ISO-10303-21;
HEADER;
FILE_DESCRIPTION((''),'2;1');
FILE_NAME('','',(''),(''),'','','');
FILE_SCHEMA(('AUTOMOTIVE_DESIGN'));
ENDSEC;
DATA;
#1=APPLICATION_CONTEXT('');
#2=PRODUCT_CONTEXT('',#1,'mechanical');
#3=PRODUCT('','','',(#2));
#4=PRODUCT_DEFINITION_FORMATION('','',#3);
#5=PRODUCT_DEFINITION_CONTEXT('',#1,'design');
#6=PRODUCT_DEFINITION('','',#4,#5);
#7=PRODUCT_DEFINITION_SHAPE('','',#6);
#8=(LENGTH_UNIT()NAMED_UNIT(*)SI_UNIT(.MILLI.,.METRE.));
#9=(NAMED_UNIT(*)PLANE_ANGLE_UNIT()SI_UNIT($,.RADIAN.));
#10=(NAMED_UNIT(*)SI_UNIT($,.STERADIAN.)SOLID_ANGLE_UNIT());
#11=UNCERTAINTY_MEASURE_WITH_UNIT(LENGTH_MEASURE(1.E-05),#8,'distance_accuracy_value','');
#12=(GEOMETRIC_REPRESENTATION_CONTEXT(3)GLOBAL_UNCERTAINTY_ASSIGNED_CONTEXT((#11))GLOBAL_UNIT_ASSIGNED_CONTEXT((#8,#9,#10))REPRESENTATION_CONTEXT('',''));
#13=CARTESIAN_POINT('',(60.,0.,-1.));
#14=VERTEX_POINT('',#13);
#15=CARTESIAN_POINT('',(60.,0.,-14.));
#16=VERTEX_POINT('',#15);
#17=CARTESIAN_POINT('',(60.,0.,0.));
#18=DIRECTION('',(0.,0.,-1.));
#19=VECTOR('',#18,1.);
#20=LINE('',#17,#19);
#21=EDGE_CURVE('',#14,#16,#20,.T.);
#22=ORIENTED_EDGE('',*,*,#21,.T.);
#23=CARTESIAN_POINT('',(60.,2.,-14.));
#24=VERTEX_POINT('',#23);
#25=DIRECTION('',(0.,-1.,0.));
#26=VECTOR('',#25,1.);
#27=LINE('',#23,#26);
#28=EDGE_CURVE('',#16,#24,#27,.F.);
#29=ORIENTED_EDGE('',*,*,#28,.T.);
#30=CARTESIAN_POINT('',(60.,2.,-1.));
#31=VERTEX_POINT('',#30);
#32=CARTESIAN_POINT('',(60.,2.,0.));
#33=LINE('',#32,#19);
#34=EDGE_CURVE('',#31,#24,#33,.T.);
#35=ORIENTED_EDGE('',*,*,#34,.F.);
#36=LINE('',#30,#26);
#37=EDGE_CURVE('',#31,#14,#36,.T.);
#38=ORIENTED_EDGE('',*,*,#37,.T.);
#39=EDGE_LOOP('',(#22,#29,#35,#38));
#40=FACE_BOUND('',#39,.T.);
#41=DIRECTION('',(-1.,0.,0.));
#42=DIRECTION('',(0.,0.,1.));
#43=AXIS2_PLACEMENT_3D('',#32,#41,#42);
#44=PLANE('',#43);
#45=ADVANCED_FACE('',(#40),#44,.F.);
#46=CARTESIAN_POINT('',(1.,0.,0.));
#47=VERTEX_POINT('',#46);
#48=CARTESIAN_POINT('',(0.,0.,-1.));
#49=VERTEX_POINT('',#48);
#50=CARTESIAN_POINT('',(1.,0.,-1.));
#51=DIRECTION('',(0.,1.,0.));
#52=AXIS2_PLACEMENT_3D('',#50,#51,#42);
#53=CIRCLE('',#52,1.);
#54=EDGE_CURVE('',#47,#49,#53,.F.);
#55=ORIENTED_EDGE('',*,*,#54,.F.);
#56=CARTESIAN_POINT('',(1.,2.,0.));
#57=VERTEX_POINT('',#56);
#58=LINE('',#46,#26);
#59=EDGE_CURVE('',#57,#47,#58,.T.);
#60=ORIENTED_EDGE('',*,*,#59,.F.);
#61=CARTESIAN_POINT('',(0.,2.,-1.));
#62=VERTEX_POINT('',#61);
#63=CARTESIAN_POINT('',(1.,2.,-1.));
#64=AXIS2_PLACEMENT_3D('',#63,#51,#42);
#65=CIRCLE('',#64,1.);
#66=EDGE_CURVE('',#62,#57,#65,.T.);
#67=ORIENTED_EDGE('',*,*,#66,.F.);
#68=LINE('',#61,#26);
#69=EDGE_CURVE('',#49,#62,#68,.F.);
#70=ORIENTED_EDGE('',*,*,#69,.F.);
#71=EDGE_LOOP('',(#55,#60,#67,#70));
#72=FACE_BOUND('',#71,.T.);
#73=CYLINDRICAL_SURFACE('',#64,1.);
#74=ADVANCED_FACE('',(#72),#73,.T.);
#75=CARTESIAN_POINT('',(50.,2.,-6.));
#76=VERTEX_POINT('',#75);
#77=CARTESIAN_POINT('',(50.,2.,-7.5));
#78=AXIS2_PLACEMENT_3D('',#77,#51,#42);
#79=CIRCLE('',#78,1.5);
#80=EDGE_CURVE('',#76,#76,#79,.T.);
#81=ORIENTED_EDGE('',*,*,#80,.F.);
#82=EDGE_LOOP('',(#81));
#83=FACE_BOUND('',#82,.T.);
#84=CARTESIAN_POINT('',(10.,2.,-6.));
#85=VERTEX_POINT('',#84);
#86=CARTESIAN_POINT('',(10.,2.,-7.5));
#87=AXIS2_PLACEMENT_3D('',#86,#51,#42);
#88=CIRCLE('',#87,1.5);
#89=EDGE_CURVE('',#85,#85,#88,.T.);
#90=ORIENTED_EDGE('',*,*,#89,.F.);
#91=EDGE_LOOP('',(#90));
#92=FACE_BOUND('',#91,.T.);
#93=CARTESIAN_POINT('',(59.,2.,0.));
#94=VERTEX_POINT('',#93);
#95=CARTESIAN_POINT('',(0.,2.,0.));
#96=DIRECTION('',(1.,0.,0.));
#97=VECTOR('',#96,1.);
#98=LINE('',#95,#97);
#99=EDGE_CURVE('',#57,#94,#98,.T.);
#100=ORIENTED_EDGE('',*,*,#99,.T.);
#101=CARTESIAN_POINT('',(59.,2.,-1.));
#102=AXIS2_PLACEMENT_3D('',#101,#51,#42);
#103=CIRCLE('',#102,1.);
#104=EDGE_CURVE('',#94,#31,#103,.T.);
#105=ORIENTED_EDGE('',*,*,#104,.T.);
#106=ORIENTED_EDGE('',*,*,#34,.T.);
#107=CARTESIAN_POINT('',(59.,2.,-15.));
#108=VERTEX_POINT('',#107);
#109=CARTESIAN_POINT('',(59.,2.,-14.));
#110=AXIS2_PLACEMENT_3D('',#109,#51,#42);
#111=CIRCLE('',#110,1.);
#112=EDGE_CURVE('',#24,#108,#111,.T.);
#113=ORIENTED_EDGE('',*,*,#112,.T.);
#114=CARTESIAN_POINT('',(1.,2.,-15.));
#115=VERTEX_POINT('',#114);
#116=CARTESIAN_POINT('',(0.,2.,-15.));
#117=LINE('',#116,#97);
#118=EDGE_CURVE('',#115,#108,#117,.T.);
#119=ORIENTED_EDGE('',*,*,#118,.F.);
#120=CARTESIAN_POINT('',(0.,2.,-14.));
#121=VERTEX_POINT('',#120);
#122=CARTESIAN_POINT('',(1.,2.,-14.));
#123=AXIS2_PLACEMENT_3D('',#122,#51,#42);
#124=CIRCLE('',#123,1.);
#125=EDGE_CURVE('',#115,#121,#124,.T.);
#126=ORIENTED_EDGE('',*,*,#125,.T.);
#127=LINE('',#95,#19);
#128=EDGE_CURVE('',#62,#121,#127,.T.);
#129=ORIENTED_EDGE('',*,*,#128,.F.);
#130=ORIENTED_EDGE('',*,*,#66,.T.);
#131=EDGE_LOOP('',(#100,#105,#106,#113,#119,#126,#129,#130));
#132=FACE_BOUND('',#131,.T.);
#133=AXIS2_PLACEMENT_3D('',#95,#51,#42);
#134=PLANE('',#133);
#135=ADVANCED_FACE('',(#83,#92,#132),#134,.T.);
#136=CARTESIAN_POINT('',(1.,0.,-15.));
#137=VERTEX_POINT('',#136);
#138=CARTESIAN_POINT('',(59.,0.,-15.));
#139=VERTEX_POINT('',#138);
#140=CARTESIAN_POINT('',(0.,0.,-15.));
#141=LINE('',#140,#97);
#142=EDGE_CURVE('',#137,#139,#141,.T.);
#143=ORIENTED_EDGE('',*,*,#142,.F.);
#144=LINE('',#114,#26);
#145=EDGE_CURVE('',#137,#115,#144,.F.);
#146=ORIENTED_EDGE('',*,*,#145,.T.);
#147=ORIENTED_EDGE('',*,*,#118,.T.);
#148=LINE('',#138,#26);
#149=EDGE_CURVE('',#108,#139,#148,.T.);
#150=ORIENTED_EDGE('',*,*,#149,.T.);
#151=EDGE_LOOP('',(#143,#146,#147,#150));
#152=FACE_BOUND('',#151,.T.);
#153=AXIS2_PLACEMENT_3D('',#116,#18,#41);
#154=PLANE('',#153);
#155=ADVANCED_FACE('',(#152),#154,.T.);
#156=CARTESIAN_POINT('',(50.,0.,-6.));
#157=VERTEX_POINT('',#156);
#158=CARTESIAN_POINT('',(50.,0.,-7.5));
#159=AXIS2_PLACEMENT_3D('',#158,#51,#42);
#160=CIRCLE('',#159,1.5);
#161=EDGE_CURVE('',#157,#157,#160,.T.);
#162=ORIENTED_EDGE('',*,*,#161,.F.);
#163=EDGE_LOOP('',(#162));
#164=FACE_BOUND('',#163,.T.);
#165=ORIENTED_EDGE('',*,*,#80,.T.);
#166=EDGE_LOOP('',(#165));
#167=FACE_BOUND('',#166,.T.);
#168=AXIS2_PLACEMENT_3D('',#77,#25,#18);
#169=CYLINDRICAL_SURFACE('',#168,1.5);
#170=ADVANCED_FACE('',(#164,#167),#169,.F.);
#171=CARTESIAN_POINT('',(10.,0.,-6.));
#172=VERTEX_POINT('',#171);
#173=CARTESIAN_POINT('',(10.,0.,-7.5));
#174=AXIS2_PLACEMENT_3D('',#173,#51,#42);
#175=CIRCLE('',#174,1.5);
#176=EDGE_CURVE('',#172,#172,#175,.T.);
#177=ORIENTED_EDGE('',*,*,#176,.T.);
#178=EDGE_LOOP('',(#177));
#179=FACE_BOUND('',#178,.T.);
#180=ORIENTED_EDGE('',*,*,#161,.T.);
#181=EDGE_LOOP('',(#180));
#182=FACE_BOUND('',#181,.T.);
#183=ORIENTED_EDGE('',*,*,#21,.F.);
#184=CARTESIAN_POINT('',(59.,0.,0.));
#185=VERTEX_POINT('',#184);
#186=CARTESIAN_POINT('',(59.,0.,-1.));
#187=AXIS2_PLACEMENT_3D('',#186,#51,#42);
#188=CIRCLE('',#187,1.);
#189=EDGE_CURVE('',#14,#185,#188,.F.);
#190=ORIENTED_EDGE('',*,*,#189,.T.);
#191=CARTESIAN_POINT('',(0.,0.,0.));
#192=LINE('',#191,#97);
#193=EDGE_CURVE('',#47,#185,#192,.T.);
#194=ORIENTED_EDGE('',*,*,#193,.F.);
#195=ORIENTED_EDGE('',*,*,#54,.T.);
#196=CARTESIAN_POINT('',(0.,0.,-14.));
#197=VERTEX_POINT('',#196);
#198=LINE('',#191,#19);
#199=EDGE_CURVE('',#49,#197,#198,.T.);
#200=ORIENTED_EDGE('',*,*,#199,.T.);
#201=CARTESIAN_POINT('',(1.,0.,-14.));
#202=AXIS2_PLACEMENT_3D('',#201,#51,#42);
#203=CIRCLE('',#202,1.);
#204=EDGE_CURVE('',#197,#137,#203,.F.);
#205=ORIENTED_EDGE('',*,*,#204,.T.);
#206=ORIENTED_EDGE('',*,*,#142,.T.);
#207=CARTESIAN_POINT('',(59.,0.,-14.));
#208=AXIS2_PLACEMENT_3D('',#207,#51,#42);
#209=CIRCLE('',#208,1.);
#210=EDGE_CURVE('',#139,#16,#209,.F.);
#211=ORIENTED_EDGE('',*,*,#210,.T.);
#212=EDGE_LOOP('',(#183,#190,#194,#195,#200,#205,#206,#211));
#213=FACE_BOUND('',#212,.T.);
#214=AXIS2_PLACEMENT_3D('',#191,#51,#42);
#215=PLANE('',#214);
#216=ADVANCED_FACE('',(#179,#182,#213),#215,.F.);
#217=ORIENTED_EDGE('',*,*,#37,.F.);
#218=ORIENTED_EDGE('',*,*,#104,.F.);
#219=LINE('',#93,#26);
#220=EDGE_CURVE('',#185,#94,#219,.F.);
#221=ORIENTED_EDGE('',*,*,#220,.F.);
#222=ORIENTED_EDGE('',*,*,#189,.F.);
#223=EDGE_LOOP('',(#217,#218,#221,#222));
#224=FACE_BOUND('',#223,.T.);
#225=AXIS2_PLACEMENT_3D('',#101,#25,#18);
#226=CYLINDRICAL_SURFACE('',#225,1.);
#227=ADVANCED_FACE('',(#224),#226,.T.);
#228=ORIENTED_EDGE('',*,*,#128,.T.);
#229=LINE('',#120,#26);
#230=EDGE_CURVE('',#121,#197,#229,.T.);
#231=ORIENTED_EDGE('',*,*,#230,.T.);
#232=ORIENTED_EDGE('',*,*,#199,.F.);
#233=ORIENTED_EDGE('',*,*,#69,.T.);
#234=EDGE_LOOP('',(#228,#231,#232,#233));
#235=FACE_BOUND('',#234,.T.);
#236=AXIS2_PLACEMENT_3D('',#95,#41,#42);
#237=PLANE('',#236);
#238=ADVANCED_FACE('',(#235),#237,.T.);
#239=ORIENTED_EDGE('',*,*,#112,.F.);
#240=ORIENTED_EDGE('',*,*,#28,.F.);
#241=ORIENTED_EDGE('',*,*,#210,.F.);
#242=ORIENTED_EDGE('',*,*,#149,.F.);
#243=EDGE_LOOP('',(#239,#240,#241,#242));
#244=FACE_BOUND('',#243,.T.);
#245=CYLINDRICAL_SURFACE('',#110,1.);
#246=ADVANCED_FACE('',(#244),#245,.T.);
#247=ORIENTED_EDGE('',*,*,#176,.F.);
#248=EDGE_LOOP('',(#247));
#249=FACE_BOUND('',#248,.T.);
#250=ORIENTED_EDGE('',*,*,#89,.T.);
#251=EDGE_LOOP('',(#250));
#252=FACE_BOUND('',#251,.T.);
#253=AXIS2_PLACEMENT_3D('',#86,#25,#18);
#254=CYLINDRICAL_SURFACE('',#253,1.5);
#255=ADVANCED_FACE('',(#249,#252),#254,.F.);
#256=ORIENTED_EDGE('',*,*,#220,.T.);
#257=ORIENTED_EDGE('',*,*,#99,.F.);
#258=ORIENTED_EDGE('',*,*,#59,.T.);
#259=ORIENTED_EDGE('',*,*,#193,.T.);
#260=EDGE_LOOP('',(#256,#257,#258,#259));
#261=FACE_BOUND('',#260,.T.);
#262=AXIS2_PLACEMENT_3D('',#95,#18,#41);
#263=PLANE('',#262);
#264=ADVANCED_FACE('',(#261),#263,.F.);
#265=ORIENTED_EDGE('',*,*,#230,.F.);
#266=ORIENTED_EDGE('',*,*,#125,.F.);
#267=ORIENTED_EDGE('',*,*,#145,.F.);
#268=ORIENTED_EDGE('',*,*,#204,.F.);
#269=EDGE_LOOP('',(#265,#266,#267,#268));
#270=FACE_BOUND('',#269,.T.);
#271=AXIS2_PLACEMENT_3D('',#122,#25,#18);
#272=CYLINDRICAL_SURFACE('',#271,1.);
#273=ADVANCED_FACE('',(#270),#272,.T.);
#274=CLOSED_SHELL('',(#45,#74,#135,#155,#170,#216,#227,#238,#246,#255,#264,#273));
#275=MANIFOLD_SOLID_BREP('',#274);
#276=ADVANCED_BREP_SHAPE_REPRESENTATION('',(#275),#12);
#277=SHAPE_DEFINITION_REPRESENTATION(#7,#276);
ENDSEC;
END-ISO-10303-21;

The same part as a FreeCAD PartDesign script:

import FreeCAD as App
import Part
import Sketcher

V = App.Vector
Q = App.Units.Quantity


def edges_at(feature, points):
    """Names of the edges that pass closest to the given points."""
    edges = feature.Shape.Edges
    near = lambda p: min(range(len(edges)), key=lambda i: edges[i].distToShape(Part.Vertex(*p))[0])
    return sorted({f"Edge{near(p) + 1}" for p in points})

doc = App.newDocument("Part")
body = doc.addObject("PartDesign::Body", "Body")

# Sketch on XZ plane
sketch1 = body.newObject("Sketcher::SketchObject", "Sketch")
sketch1.AttachmentSupport = (doc.getObject("XZ_Plane"), [""])
sketch1.MapMode = "FlatFace"
sketch1.addGeometry(Part.LineSegment(V(0, -15, 0), V(0, 0, 0)), False)
sketch1.addGeometry(Part.LineSegment(V(0, 0, 0), V(60, 0, 0)), False)
sketch1.addGeometry(Part.LineSegment(V(60, 0, 0), V(60, -15, 0)), False)
sketch1.addGeometry(Part.LineSegment(V(60, -15, 0), V(0, -15, 0)), False)
sketch1.addGeometry(Part.Circle(V(10, -7.5, 0), V(0, 0, 1), 1.5), False)
sketch1.addGeometry(Part.Circle(V(50, -7.5, 0), V(0, 0, 1), 1.5), False)
sketch1.addConstraint(Sketcher.Constraint("Coincident", 0, 2, 1, 1))
sketch1.addConstraint(Sketcher.Constraint("Coincident", 1, 2, 2, 1))
sketch1.addConstraint(Sketcher.Constraint("Coincident", 2, 2, 3, 1))
sketch1.addConstraint(Sketcher.Constraint("Coincident", 3, 2, 0, 1))
sketch1.addConstraint(Sketcher.Constraint("Vertical", 0))
sketch1.addConstraint(Sketcher.Constraint("Horizontal", 1))
sketch1.addConstraint(Sketcher.Constraint("Vertical", 2))
sketch1.addConstraint(Sketcher.Constraint("Horizontal", 3))
sketch1.addConstraint(Sketcher.Constraint("Coincident", 0, 2, -1, 1))
sketch1.addConstraint(Sketcher.Constraint("Equal", 4, 5))
sketch1.addConstraint(Sketcher.Constraint("Horizontal", 4, 3, 5, 3))
sketch1.addConstraint(Sketcher.Constraint("Diameter", 4, Q("3 mm")))
sketch1.addConstraint(Sketcher.Constraint("DistanceX", 1, 1, 1, 2, Q("60 mm")))
sketch1.addConstraint(Sketcher.Constraint("DistanceY", 0, 1, 0, 2, Q("15 mm")))
sketch1.addConstraint(Sketcher.Constraint("DistanceX", -1, 1, 4, 3, Q("10 mm")))
sketch1.addConstraint(Sketcher.Constraint("DistanceX", -1, 1, 5, 3, Q("50 mm")))
sketch1.addConstraint(Sketcher.Constraint("DistanceY", 4, 3, -1, 1, Q("7.5 mm")))
pad1 = body.newObject("PartDesign::Pad", "Pad")
pad1.Profile = sketch1
pad1.Length = 2
pad1.Reversed = True
doc.recompute()

fillet = body.newObject("PartDesign::Fillet", "Fillet")
fillet.Base = (pad1, edges_at(pad1, [
    (0, 1, 0),
    (0, 1, -15),
    (60, 1, -15),
    (60, 1, 0),
]))
fillet.Radius = 1

doc.recompute()
